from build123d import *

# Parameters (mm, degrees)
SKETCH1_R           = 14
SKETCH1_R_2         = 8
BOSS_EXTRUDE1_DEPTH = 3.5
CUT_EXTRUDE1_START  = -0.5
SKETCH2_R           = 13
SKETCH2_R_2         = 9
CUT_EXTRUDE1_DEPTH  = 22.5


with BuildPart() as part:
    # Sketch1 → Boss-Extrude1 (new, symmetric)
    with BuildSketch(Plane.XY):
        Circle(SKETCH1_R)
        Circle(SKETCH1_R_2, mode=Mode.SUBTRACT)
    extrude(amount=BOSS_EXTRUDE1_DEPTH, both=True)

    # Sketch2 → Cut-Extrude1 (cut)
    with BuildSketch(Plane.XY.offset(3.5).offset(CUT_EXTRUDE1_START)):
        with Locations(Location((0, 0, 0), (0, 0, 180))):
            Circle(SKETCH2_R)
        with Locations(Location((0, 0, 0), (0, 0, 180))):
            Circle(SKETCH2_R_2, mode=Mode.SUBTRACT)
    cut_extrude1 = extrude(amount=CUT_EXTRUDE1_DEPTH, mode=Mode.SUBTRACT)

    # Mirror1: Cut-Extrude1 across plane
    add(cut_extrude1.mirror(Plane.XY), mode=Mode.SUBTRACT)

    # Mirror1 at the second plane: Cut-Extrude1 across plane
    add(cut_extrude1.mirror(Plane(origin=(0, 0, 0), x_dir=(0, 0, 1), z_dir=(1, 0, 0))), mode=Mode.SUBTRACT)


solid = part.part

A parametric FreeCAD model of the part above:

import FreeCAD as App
import Part
import Sketcher
from FreeCAD import Vector

doc = App.newDocument("Part")
params = doc.addObject("Spreadsheet::Sheet", "Params")
for row, (alias, value) in enumerate([
    ("sketch1_diameter", "28 mm"),
    ("sketch1_diameter2", "16 mm"),
    ("pad1_length", "7 mm"),
    ("sketch2_diameter", "26 mm"),
    ("sketch2_diameter2", "18 mm"),
    ("pocket1_length", "22.5 mm"),
], start=1):
    params.set(f"A{row}", alias)
    params.set(f"B{row}", "=" + value)
    params.setAlias(f"B{row}", alias)

body = doc.addObject("PartDesign::Body", "Body")

sketch1 = body.newObject("Sketcher::SketchObject", "Sketch")
sketch1.AttachmentSupport = (doc.getObject("XY_Plane"), [""])
sketch1.MapMode = "FlatFace"
sketch1.addGeometry([
    Part.Circle(Vector(0, 0, 0), Vector(0, 0, 1), 14),
    Part.Circle(Vector(0, 0, 0), Vector(0, 0, 1), 8),
], False)
sketch1.addConstraint([
    Sketcher.Constraint("Coincident", 0, 3, -1, 1),
    Sketcher.Constraint("Coincident", 1, 3, -1, 1),
    Sketcher.Constraint("Diameter", 0, 28.0),
    Sketcher.Constraint("Diameter", 1, 16.0),
])
sketch1.setExpression("Constraints[2]", "Params.sketch1_diameter")
sketch1.setExpression("Constraints[3]", "Params.sketch1_diameter2")
pad1 = body.newObject("PartDesign::Pad", "Pad")
pad1.Profile = sketch1
pad1.setExpression("Length", "Params.pad1_length")
pad1.Midplane = True

sketch2 = body.newObject("Sketcher::SketchObject", "Sketch001")
sketch2.AttachmentSupport = (doc.getObject("XY_Plane"), [""])
sketch2.MapMode = "FlatFace"
sketch2.AttachmentOffset = App.Placement(Vector(0, 0, 3), App.Rotation())
sketch2.addGeometry([
    Part.Circle(Vector(0, 0, 0), Vector(0, 0, 1), 13),
    Part.Circle(Vector(0, 0, 0), Vector(0, 0, 1), 9),
], False)
sketch2.addConstraint([
    Sketcher.Constraint("Coincident", 0, 3, -1, 1),
    Sketcher.Constraint("Coincident", 1, 3, -1, 1),
    Sketcher.Constraint("Diameter", 0, 26.0),
    Sketcher.Constraint("Diameter", 1, 18.0),
])
sketch2.setExpression("Constraints[2]", "Params.sketch2_diameter")
sketch2.setExpression("Constraints[3]", "Params.sketch2_diameter2")
pocket1 = body.newObject("PartDesign::Pocket", "Pocket")
pocket1.Profile = sketch2
pocket1.setExpression("Length", "Params.pocket1_length")
pocket1.Reversed = True
doc.recompute()

mirrored = body.newObject("PartDesign::Mirrored", "Mirrored")
mirrored.Originals = [pocket1]
mirrored.MirrorPlane = (doc.getObject("XY_Plane"), [""])
body.Tip = mirrored
doc.recompute()

mirrored2 = body.newObject("PartDesign::Mirrored", "Mirrored001")
mirrored2.Originals = [pocket1]
mirrored2.MirrorPlane = (doc.getObject("YZ_Plane"), [""])
body.Tip = mirrored2

doc.recompute()
